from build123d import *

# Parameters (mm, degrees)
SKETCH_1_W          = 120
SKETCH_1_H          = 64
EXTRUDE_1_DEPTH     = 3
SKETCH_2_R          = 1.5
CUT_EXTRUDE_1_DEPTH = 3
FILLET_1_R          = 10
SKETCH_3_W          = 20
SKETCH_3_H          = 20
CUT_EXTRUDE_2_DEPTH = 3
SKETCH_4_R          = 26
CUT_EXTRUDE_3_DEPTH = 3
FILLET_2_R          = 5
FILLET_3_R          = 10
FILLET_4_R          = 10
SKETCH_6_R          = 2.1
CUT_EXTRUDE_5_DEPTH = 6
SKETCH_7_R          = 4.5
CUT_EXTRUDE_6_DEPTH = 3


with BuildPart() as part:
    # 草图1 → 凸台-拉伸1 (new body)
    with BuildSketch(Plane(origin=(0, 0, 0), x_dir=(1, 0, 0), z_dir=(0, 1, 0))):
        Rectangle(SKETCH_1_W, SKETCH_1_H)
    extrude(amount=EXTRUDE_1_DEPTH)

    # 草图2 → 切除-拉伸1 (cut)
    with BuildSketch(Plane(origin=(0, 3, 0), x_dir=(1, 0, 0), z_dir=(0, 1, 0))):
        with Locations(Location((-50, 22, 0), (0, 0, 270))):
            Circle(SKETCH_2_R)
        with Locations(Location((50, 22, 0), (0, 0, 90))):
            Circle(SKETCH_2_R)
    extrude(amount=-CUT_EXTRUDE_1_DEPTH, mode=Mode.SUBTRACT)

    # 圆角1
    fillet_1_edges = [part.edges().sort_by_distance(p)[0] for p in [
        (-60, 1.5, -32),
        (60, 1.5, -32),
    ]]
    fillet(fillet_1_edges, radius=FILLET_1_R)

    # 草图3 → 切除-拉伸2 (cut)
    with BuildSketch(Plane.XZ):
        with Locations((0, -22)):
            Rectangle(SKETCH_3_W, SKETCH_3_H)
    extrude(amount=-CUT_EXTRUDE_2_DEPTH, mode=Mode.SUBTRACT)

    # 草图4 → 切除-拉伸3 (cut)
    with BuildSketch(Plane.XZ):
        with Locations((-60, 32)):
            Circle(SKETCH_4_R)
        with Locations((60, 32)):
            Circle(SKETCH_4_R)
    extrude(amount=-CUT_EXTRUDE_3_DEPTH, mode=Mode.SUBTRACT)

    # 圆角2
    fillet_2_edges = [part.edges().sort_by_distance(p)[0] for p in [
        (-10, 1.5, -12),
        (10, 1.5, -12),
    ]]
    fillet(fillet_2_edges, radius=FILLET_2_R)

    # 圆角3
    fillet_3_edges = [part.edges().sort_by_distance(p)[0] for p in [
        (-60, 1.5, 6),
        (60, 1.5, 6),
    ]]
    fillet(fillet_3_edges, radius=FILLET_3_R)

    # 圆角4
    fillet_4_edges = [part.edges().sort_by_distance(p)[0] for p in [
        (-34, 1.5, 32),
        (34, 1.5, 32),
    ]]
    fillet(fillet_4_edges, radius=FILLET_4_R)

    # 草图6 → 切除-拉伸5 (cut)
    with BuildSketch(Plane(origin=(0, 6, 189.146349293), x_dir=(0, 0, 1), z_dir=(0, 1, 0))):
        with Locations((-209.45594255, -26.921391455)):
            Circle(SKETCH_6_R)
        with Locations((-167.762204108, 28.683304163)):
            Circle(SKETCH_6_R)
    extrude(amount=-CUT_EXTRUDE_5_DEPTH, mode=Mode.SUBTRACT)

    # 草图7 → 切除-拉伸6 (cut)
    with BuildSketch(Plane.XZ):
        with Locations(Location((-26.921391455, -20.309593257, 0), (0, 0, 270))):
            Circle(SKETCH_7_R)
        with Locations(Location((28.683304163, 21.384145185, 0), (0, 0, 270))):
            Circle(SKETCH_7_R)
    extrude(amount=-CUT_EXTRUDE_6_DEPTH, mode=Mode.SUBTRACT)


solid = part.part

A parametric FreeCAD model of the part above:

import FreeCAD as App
import Part
import Sketcher
from FreeCAD import Vector


def edges_at(feature, points):
    """Names of the edges that pass closest to the given points."""
    edges = feature.Shape.Edges
    near = lambda p: min(range(len(edges)), key=lambda i: edges[i].distToShape(Part.Vertex(*p))[0])
    return sorted({f"Edge{near(p) + 1}" for p in points})

doc = App.newDocument("Part")
body = doc.addObject("PartDesign::Body", "Body")

sketch1 = doc.addObject("Sketcher::SketchObject", "Sketch")
body.addObject(sketch1)
sketch1.AttachmentSupport = (doc.XZ_Plane, [""])
sketch1.MapMode = "FlatFace"
sketch1.addGeometry([
    Part.LineSegment(Vector(-60, -32, 0), Vector(-60, 32, 0)),
    Part.LineSegment(Vector(-60, 32, 0), Vector(60, 32, 0)),
    Part.LineSegment(Vector(60, 32, 0), Vector(60, -32, 0)),
    Part.LineSegment(Vector(60, -32, 0), Vector(-60, -32, 0)),
], False)
sketch1.addConstraint([
    Sketcher.Constraint("Coincident", 0, 2, 1, 1),
    Sketcher.Constraint("Coincident", 1, 2, 2, 1),
    Sketcher.Constraint("Coincident", 2, 2, 3, 1),
    Sketcher.Constraint("Coincident", 3, 2, 0, 1),
    Sketcher.Constraint("Vertical", 0),
    Sketcher.Constraint("Horizontal", 1),
    Sketcher.Constraint("Vertical", 2),
    Sketcher.Constraint("Horizontal", 3),
    Sketcher.Constraint("Symmetric", 0, 2, 2, 2, -1, 1),
    Sketcher.Constraint("DistanceX", 1, 1, 1, 2, 120.0),
    Sketcher.Constraint("DistanceY", 0, 1, 0, 2, 64.0),
])
pad1 = doc.addObject("PartDesign::Pad", "Pad")
body.addObject(pad1)
pad1.Profile = sketch1
pad1.Length = 3
pad1.Reversed = True

sketch2 = doc.addObject("Sketcher::SketchObject", "Sketch001")
body.addObject(sketch2)
sketch2.AttachmentSupport = (doc.XZ_Plane, [""])
sketch2.MapMode = "FlatFace"
sketch2.AttachmentOffset = App.Placement(Vector(0, 0, -3), App.Rotation())
sketch2.addGeometry([
    Part.Circle(Vector(-50, -22, 0), Vector(0, 0, 1), 1.5),
    Part.Circle(Vector(50, -22, 0), Vector(0, 0, 1), 1.5),
], False)
sketch2.addConstraint([
    Sketcher.Constraint("Equal", 0, 1),
    Sketcher.Constraint("Symmetric", 0, 3, 1, 3, -2),
    Sketcher.Constraint("Diameter", 0, 3.0),
    Sketcher.Constraint("DistanceX", 0, 3, -1, 1, 50.0),
    Sketcher.Constraint("DistanceY", 0, 3, -1, 1, 22.0),
])
pocket1 = doc.addObject("PartDesign::Pocket", "Pocket")
body.addObject(pocket1)
pocket1.Profile = sketch2
pocket1.Length = 3
pocket1.Reversed = True
doc.recompute()

fillet = doc.addObject("PartDesign::Fillet", "Fillet")
body.addObject(fillet)
fillet.Base = (pocket1, edges_at(pocket1, [(-60, 1.5, -32), (60, 1.5, -32)]))
fillet.Radius = 10

sketch3 = doc.addObject("Sketcher::SketchObject", "Sketch002")
body.addObject(sketch3)
sketch3.AttachmentSupport = (doc.XZ_Plane, [""])
sketch3.MapMode = "FlatFace"
sketch3.addGeometry([
    Part.LineSegment(Vector(-10, -12, 0), Vector(-10, -32, 0)),
    Part.LineSegment(Vector(-10, -32, 0), Vector(10, -32, 0)),
    Part.LineSegment(Vector(10, -32, 0), Vector(10, -12, 0)),
    Part.LineSegment(Vector(10, -12, 0), Vector(-10, -12, 0)),
], False)
sketch3.addConstraint([
    Sketcher.Constraint("Coincident", 0, 2, 1, 1),
    Sketcher.Constraint("Coincident", 1, 2, 2, 1),
    Sketcher.Constraint("Coincident", 2, 2, 3, 1),
    Sketcher.Constraint("Coincident", 3, 2, 0, 1),
    Sketcher.Constraint("Vertical", 0),
    Sketcher.Constraint("Horizontal", 1),
    Sketcher.Constraint("Vertical", 2),
    Sketcher.Constraint("Horizontal", 3),
    Sketcher.Constraint("Equal", 3, 0),
    Sketcher.Constraint("DistanceX", 1, 1, 1, 2, 20.0),
    Sketcher.Constraint("DistanceX", 0, 2, -1, 1, 10.0),
    Sketcher.Constraint("DistanceY", 0, 2, -1, 1, 32.0),
])
pocket2 = doc.addObject("PartDesign::Pocket", "Pocket001")
body.addObject(pocket2)
pocket2.Profile = sketch3
pocket2.Length = 3

sketch4 = doc.addObject("Sketcher::SketchObject", "Sketch003")
body.addObject(sketch4)
sketch4.AttachmentSupport = (doc.XZ_Plane, [""])
sketch4.MapMode = "FlatFace"
sketch4.addGeometry([
    Part.Circle(Vector(-60, 32, 0), Vector(0, 0, 1), 26),
    Part.Circle(Vector(60, 32, 0), Vector(0, 0, 1), 26),
], False)
sketch4.addConstraint([
    Sketcher.Constraint("Equal", 0, 1),
    Sketcher.Constraint("Symmetric", 0, 3, 1, 3, -2),
    Sketcher.Constraint("Diameter", 0, 52.0),
    Sketcher.Constraint("DistanceX", 0, 3, -1, 1, 60.0),
    Sketcher.Constraint("DistanceY", -1, 1, 0, 3, 32.0),
])
pocket3 = doc.addObject("PartDesign::Pocket", "Pocket002")
body.addObject(pocket3)
pocket3.Profile = sketch4
pocket3.Length = 3
doc.recompute()

fillet2 = doc.addObject("PartDesign::Fillet", "Fillet001")
body.addObject(fillet2)
fillet2.Base = (pocket3, edges_at(pocket3, [(-10, 1.5, -12), (10, 1.5, -12)]))
fillet2.Radius = 5
doc.recompute()

fillet3 = doc.addObject("PartDesign::Fillet", "Fillet002")
body.addObject(fillet3)
fillet3.Base = (fillet2, edges_at(fillet2, [(-60, 1.5, 6), (60, 1.5, 6)]))
fillet3.Radius = 10
doc.recompute()

fillet4 = doc.addObject("PartDesign::Fillet", "Fillet003")
body.addObject(fillet4)
fillet4.Base = (fillet3, edges_at(fillet3, [(-34, 1.5, 32), (34, 1.5, 32)]))
fillet4.Radius = 10

sketch5 = doc.addObject("Sketcher::SketchObject", "Sketch004")
body.addObject(sketch5)
sketch5.AttachmentSupport = (doc.XZ_Plane, [""])
sketch5.MapMode = "FlatFace"
sketch5.AttachmentOffset = App.Placement(Vector(0, 0, -6), App.Rotation())
sketch5.addGeometry([
    Part.Circle(Vector(-26.9, -20.3, 0), Vector(0, 0, 1), 2.1),
    Part.Circle(Vector(28.7, 21.4, 0), Vector(0, 0, 1), 2.1),
], False)
sketch5.addConstraint([
    Sketcher.Constraint("Equal", 0, 1),
    Sketcher.Constraint("Diameter", 0, 4.2),
    Sketcher.Constraint("DistanceX", 0, 3, -1, 1, 26.921391),
    Sketcher.Constraint("DistanceY", 0, 3, 1, 3, 41.693738),
    Sketcher.Constraint("DistanceY", 0, 3, -1, 1, 20.309593),
    Sketcher.Constraint("DistanceX", -1, 1, 1, 3, 28.683304),
])
pocket4 = doc.addObject("PartDesign::Pocket", "Pocket003")
body.addObject(pocket4)
pocket4.Profile = sketch5
pocket4.Length = 6
pocket4.Reversed = True

sketch6 = doc.addObject("Sketcher::SketchObject", "Sketch005")
body.addObject(sketch6)
sketch6.AttachmentSupport = (doc.XZ_Plane, [""])
sketch6.MapMode = "FlatFace"
sketch6.addGeometry([
    Part.Circle(Vector(-26.9, -20.3, 0), Vector(0, 0, 1), 4.5),
    Part.Circle(Vector(28.7, 21.4, 0), Vector(0, 0, 1), 4.5),
], False)
sketch6.addConstraint([
    Sketcher.Constraint("Equal", 0, 1),
    Sketcher.Constraint("Diameter", 0, 9.0),
    Sketcher.Constraint("DistanceX", 0, 3, -1, 1, 26.921391),
    Sketcher.Constraint("DistanceY", 0, 3, 1, 3, 41.693738),
    Sketcher.Constraint("DistanceY", 0, 3, -1, 1, 20.309593),
    Sketcher.Constraint("DistanceX", -1, 1, 1, 3, 28.683304),
])
pocket5 = doc.addObject("PartDesign::Pocket", "Pocket004")
body.addObject(pocket5)
pocket5.Profile = sketch6
pocket5.Length = 3

doc.recompute()
